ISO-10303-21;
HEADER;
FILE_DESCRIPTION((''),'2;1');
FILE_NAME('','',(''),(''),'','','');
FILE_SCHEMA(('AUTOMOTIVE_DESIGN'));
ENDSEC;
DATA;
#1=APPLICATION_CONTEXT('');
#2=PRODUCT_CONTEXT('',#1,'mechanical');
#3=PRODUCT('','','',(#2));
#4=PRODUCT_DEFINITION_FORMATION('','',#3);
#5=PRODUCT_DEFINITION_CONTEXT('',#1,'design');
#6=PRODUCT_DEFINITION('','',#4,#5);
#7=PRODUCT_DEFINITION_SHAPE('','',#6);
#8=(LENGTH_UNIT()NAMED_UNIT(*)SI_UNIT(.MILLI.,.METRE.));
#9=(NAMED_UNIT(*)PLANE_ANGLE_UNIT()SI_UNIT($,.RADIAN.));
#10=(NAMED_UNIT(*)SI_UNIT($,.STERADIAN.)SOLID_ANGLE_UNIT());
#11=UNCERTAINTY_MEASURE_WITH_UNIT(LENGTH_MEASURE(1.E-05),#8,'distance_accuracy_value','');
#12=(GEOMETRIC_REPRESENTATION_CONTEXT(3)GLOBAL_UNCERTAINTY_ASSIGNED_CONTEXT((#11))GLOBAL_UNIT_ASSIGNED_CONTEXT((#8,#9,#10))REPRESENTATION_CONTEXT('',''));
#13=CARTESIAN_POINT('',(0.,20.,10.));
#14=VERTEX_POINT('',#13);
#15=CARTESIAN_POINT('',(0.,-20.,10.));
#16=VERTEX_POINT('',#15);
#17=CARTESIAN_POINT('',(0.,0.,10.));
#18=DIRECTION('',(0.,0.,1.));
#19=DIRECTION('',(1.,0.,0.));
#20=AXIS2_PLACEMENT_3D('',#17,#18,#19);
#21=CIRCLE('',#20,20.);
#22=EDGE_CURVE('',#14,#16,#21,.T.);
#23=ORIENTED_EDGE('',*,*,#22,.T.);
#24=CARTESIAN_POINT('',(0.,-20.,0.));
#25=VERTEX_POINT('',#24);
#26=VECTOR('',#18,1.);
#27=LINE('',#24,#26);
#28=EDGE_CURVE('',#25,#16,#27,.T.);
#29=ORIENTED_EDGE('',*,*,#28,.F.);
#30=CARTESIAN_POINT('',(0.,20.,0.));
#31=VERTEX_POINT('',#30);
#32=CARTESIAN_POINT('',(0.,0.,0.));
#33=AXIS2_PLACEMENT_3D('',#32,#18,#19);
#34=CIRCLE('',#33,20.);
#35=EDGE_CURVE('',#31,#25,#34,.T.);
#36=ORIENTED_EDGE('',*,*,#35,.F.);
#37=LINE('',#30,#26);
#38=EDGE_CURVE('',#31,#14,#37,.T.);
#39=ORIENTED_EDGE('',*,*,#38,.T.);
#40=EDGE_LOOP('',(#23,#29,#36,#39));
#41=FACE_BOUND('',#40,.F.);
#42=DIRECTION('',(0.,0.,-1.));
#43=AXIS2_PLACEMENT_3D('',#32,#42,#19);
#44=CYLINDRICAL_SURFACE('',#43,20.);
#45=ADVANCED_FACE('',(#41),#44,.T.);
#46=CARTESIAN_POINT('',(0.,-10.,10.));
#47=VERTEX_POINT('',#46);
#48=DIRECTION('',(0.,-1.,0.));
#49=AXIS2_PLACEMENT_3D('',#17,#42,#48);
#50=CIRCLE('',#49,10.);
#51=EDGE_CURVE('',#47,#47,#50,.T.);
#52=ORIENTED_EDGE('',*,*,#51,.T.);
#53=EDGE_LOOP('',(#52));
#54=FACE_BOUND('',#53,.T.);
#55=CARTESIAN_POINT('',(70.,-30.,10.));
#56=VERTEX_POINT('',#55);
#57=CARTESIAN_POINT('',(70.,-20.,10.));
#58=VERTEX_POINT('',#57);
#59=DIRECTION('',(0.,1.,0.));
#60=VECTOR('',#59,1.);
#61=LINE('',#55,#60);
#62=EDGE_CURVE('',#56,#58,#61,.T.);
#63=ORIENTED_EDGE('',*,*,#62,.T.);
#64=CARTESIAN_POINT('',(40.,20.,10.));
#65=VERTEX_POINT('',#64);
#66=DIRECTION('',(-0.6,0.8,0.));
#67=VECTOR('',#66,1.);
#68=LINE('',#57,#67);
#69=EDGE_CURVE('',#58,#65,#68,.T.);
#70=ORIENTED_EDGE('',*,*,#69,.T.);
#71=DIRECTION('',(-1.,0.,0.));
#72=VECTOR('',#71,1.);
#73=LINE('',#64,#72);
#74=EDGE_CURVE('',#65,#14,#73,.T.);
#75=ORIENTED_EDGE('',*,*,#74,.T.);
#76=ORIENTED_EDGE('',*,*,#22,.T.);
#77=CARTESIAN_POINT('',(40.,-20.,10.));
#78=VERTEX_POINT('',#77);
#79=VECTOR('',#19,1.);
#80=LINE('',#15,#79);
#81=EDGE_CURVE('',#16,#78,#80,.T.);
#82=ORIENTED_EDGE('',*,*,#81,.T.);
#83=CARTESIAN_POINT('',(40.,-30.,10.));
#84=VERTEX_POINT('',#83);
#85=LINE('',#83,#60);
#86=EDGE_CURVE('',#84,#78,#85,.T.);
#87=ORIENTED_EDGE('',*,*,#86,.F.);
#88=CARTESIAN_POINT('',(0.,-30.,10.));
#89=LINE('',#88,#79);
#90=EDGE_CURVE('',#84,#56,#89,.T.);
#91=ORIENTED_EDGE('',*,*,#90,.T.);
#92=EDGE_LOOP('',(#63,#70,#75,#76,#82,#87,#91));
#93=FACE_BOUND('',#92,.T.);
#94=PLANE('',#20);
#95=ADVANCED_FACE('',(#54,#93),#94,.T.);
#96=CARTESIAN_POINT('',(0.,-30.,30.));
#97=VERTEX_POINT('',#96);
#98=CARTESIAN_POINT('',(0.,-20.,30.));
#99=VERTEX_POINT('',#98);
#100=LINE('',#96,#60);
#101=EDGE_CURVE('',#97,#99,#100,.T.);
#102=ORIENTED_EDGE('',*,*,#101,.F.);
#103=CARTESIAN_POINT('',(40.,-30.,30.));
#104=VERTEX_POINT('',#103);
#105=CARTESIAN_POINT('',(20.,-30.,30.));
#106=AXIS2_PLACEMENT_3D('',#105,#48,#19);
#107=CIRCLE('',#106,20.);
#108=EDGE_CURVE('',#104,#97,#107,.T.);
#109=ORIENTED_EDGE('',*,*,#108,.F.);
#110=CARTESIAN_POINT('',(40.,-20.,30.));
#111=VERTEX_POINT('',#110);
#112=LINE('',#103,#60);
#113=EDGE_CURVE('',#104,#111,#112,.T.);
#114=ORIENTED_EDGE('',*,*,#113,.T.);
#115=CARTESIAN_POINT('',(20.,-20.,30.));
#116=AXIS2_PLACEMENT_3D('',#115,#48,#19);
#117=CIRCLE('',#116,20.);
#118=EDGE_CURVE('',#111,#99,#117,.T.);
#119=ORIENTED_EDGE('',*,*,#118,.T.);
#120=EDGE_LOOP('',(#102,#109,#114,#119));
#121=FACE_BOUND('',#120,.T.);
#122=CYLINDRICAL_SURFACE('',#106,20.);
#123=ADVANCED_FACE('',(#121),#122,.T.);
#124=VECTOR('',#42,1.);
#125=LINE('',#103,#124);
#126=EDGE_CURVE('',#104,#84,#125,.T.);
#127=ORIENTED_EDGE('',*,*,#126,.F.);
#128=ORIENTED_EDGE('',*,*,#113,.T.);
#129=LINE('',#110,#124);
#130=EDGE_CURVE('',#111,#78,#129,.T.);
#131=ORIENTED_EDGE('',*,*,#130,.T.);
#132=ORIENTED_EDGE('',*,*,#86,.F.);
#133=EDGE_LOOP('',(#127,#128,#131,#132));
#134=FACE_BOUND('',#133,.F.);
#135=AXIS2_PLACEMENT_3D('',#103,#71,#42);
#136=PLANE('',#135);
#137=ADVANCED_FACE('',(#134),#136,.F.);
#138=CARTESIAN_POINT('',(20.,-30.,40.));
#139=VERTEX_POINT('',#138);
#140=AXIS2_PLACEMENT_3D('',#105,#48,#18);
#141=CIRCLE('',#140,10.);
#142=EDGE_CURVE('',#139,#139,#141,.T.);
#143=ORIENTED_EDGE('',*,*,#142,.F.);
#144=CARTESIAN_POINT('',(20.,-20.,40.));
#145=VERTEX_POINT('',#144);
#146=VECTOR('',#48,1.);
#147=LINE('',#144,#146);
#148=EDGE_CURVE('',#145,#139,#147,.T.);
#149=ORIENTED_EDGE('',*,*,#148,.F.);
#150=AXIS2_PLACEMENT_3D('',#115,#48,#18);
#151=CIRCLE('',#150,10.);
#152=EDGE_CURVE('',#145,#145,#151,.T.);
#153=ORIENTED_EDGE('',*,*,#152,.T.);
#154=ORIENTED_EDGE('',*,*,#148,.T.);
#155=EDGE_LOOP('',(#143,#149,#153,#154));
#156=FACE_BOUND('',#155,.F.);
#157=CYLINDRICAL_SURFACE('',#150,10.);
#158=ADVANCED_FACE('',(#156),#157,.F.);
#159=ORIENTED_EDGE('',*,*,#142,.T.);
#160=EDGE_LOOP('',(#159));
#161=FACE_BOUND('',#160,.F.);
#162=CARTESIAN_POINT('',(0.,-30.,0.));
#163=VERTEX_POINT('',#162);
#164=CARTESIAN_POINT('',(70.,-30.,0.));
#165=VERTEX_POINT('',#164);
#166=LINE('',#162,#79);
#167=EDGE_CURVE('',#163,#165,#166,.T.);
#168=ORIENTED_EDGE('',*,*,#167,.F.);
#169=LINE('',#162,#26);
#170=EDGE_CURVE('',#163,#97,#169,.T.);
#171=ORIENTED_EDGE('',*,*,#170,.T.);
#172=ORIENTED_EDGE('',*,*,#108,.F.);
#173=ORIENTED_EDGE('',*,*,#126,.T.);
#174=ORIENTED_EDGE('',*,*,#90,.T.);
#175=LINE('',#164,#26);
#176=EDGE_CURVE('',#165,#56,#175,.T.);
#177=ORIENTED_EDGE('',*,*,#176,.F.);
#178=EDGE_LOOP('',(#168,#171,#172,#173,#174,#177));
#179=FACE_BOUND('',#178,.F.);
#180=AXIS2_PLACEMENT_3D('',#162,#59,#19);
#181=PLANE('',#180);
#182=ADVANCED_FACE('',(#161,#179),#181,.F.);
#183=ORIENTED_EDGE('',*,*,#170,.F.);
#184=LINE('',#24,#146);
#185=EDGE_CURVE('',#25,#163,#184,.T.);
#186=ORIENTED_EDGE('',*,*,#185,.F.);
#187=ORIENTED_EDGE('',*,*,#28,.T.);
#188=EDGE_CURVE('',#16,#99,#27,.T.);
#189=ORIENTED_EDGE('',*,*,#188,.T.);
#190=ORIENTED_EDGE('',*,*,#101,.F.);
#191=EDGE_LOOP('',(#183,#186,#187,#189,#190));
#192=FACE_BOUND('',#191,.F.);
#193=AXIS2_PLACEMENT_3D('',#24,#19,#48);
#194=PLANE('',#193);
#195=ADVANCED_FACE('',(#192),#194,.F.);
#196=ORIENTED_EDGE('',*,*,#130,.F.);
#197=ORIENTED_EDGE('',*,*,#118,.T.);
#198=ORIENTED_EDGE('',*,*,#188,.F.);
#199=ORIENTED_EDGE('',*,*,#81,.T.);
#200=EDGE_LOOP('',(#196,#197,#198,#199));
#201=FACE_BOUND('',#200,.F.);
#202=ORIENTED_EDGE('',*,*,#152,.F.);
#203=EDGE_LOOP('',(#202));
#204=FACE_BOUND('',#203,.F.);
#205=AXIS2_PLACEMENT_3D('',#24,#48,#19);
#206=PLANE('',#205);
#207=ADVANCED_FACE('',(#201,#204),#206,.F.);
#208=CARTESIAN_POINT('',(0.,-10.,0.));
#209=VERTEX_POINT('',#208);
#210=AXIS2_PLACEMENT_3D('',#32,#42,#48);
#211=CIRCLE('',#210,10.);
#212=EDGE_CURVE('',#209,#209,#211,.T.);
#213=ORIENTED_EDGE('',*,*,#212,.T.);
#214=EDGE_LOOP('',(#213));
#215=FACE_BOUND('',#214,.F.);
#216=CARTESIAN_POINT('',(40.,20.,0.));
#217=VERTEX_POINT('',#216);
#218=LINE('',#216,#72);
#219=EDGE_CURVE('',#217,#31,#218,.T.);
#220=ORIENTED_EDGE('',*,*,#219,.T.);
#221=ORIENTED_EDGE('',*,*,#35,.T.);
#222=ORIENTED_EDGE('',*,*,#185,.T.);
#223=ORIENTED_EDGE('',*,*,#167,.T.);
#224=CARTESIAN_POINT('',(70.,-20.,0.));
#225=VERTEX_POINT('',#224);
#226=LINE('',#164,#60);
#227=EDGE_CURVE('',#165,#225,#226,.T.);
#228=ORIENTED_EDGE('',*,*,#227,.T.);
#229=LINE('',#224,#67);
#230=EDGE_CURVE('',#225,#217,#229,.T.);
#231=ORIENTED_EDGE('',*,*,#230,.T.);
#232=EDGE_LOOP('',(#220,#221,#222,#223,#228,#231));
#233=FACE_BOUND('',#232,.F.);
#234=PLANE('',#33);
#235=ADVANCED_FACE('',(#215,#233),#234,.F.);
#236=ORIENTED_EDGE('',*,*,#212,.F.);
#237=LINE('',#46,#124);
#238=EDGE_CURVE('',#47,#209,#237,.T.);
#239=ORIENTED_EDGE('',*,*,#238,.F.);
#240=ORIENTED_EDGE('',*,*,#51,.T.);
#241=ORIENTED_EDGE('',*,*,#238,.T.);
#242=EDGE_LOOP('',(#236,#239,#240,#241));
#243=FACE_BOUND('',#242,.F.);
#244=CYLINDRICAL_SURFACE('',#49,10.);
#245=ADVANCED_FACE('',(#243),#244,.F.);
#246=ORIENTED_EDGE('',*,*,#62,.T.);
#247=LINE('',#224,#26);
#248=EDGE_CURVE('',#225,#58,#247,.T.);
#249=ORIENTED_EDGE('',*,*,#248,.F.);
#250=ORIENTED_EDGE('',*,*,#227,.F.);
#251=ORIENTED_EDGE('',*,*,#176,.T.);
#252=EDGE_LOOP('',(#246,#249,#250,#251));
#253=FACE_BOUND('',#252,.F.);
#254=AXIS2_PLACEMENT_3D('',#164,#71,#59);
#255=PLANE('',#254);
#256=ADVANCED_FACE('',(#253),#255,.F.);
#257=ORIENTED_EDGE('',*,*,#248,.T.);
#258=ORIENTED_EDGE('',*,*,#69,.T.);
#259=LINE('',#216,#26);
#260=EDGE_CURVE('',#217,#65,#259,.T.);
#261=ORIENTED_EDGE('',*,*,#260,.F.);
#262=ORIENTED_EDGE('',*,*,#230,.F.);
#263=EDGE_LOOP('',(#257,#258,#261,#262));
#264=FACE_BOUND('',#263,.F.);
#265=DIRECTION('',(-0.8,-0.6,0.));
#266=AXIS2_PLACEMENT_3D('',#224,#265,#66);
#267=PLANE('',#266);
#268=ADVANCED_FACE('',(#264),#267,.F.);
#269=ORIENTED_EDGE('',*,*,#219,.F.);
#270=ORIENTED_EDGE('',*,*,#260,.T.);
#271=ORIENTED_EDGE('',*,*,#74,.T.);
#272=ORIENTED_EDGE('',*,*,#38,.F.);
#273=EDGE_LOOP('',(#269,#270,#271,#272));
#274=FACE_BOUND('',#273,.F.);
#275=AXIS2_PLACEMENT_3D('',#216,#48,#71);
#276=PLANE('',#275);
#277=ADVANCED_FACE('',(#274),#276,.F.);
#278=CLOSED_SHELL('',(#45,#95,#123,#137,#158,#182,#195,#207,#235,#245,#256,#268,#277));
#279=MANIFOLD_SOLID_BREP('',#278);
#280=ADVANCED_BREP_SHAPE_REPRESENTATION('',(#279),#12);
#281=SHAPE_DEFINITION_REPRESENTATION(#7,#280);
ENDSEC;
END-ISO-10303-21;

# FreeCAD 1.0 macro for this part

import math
import FreeCAD as App
import Part
import Sketcher
from FreeCAD import Vector
Q = App.Units.Quantity

doc = App.newDocument("Part")
body = doc.addObject("PartDesign::Body", "Body")

# Sketch on XY plane
sketch1 = body.newObject("Sketcher::SketchObject", "Sketch")
sketch1.AttachmentSupport = (doc.getObject("XY_Plane"), [""])
sketch1.MapMode = "FlatFace"
sketch1.addGeometry([
    Part.ArcOfCircle(Part.Circle(Vector(0, 0, 0), Vector(0, 0, 1), 20), math.radians(90), math.radians(270)),  # 0
    Part.LineSegment(Vector(0, -20, 0), Vector(0, -30, 0)),  # 1
    Part.LineSegment(Vector(0, -30, 0), Vector(70, -30, 0)),  # 2
    Part.LineSegment(Vector(70, -30, 0), Vector(70, -20, 0)),  # 3
    Part.LineSegment(Vector(70, -20, 0), Vector(40, 20, 0)),  # 4
    Part.LineSegment(Vector(40, 20, 0), Vector(0, 20, 0)),  # 5
], False)
sketch1.addConstraint([
    Sketcher.Constraint("Coincident", 0, 2, 1, 1),
    Sketcher.Constraint("Coincident", 1, 2, 2, 1),
    Sketcher.Constraint("Coincident", 2, 2, 3, 1),
    Sketcher.Constraint("Coincident", 3, 2, 4, 1),
    Sketcher.Constraint("Coincident", 4, 2, 5, 1),
    Sketcher.Constraint("Tangent", 5, 2, 0, 1),
    Sketcher.Constraint("Vertical", 1),
    Sketcher.Constraint("Horizontal", 2),
    Sketcher.Constraint("Vertical", 3),
    Sketcher.Constraint("Horizontal", 5),
    Sketcher.Constraint("Coincident", 0, 3, -1, 1),
    Sketcher.Constraint("PointOnObject", 0, 2, -2),
    Sketcher.Constraint("Horizontal", 0, 2, 3, 2),
    Sketcher.Constraint("Radius", 0, Q("20 mm")),
    Sketcher.Constraint("DistanceX", 2, 1, 2, 2, Q("70 mm")),
    Sketcher.Constraint("DistanceX", 5, 2, 5, 1, Q("40 mm")),
    Sketcher.Constraint("DistanceY", 1, 2, 1, 1, Q("10 mm")),
])
pad1 = body.newObject("PartDesign::Pad", "Pad")
pad1.Profile = sketch1
pad1.Length = 10

# Sketch on XY plane
sketch2 = body.newObject("Sketcher::SketchObject", "Sketch001")
sketch2.AttachmentSupport = (doc.getObject("XY_Plane"), [""])
sketch2.MapMode = "FlatFace"
sketch2.AttachmentOffset = App.Placement(Vector(0, 0, 10), App.Rotation())
sketch2.addGeometry(Part.Circle(Vector(0, 0, 0), Vector(0, 0, 1), 10), False)
sketch2.addConstraint([
    Sketcher.Constraint("Coincident", 0, 3, -1, 1),
    Sketcher.Constraint("Diameter", 0, Q("20 mm")),
])
doc.recompute()
hole = body.newObject("PartDesign::Hole", "Hole")
hole.Profile = sketch2
hole.ThreadType = "None"
hole.Diameter = 20
hole.DepthType = "ThroughAll"

# Sketch on XZ plane
sketch3 = body.newObject("Sketcher::SketchObject", "Sketch002")
sketch3.AttachmentSupport = (doc.getObject("XZ_Plane"), [""])
sketch3.MapMode = "FlatFace"
sketch3.AttachmentOffset = App.Placement(Vector(0, 0, 30), App.Rotation())
sketch3.addGeometry([
    Part.LineSegment(Vector(40, 10, 0), Vector(40, 30, 0)),
    Part.ArcOfCircle(Part.Circle(Vector(20, 30, 0), Vector(0, 0, 1), 20), math.radians(0), math.radians(180)),
    Part.LineSegment(Vector(0, 30, 0), Vector(0, 10, 0)),
    Part.LineSegment(Vector(0, 10, 0), Vector(40, 10, 0)),
], False)
sketch3.addConstraint([
    Sketcher.Constraint("Tangent", 0, 2, 1, 1),
    Sketcher.Constraint("Tangent", 1, 2, 2, 1),
    Sketcher.Constraint("Coincident", 2, 2, 3, 1),
    Sketcher.Constraint("Coincident", 3, 2, 0, 1),
    Sketcher.Constraint("Vertical", 0),
    Sketcher.Constraint("Vertical", 2),
    Sketcher.Constraint("Horizontal", 3),
    Sketcher.Constraint("PointOnObject", 1, 2, -2),
    Sketcher.Constraint("Radius", 1, Q("20 mm")),
    Sketcher.Constraint("DistanceY", -1, 1, 1, 3, Q("30 mm")),
    Sketcher.Constraint("DistanceY", 0, 1, 0, 2, Q("20 mm")),
])
pad2 = body.newObject("PartDesign::Pad", "Pad001")
pad2.Profile = sketch3
pad2.Length = 10
pad2.Reversed = True

# Sketch on XZ plane
sketch4 = body.newObject("Sketcher::SketchObject", "Sketch003")
sketch4.AttachmentSupport = (doc.getObject("XZ_Plane"), [""])
sketch4.MapMode = "FlatFace"
sketch4.AttachmentOffset = App.Placement(Vector(0, 0, 20), App.Rotation())
sketch4.addGeometry(Part.Circle(Vector(20, 30, 0), Vector(0, 0, 1), 10), False)
sketch4.addConstraint([
    Sketcher.Constraint("Diameter", 0, Q("20 mm")),
    Sketcher.Constraint("DistanceX", -1, 1, 0, 3, Q("20 mm")),
    Sketcher.Constraint("DistanceY", -1, 1, 0, 3, Q("30 mm")),
])
doc.recompute()
hole2 = body.newObject("PartDesign::Hole", "Hole001")
hole2.Profile = sketch4
hole2.ThreadType = "None"
hole2.Diameter = 20
hole2.DepthType = "ThroughAll"
hole2.Reversed = True

doc.recompute()
